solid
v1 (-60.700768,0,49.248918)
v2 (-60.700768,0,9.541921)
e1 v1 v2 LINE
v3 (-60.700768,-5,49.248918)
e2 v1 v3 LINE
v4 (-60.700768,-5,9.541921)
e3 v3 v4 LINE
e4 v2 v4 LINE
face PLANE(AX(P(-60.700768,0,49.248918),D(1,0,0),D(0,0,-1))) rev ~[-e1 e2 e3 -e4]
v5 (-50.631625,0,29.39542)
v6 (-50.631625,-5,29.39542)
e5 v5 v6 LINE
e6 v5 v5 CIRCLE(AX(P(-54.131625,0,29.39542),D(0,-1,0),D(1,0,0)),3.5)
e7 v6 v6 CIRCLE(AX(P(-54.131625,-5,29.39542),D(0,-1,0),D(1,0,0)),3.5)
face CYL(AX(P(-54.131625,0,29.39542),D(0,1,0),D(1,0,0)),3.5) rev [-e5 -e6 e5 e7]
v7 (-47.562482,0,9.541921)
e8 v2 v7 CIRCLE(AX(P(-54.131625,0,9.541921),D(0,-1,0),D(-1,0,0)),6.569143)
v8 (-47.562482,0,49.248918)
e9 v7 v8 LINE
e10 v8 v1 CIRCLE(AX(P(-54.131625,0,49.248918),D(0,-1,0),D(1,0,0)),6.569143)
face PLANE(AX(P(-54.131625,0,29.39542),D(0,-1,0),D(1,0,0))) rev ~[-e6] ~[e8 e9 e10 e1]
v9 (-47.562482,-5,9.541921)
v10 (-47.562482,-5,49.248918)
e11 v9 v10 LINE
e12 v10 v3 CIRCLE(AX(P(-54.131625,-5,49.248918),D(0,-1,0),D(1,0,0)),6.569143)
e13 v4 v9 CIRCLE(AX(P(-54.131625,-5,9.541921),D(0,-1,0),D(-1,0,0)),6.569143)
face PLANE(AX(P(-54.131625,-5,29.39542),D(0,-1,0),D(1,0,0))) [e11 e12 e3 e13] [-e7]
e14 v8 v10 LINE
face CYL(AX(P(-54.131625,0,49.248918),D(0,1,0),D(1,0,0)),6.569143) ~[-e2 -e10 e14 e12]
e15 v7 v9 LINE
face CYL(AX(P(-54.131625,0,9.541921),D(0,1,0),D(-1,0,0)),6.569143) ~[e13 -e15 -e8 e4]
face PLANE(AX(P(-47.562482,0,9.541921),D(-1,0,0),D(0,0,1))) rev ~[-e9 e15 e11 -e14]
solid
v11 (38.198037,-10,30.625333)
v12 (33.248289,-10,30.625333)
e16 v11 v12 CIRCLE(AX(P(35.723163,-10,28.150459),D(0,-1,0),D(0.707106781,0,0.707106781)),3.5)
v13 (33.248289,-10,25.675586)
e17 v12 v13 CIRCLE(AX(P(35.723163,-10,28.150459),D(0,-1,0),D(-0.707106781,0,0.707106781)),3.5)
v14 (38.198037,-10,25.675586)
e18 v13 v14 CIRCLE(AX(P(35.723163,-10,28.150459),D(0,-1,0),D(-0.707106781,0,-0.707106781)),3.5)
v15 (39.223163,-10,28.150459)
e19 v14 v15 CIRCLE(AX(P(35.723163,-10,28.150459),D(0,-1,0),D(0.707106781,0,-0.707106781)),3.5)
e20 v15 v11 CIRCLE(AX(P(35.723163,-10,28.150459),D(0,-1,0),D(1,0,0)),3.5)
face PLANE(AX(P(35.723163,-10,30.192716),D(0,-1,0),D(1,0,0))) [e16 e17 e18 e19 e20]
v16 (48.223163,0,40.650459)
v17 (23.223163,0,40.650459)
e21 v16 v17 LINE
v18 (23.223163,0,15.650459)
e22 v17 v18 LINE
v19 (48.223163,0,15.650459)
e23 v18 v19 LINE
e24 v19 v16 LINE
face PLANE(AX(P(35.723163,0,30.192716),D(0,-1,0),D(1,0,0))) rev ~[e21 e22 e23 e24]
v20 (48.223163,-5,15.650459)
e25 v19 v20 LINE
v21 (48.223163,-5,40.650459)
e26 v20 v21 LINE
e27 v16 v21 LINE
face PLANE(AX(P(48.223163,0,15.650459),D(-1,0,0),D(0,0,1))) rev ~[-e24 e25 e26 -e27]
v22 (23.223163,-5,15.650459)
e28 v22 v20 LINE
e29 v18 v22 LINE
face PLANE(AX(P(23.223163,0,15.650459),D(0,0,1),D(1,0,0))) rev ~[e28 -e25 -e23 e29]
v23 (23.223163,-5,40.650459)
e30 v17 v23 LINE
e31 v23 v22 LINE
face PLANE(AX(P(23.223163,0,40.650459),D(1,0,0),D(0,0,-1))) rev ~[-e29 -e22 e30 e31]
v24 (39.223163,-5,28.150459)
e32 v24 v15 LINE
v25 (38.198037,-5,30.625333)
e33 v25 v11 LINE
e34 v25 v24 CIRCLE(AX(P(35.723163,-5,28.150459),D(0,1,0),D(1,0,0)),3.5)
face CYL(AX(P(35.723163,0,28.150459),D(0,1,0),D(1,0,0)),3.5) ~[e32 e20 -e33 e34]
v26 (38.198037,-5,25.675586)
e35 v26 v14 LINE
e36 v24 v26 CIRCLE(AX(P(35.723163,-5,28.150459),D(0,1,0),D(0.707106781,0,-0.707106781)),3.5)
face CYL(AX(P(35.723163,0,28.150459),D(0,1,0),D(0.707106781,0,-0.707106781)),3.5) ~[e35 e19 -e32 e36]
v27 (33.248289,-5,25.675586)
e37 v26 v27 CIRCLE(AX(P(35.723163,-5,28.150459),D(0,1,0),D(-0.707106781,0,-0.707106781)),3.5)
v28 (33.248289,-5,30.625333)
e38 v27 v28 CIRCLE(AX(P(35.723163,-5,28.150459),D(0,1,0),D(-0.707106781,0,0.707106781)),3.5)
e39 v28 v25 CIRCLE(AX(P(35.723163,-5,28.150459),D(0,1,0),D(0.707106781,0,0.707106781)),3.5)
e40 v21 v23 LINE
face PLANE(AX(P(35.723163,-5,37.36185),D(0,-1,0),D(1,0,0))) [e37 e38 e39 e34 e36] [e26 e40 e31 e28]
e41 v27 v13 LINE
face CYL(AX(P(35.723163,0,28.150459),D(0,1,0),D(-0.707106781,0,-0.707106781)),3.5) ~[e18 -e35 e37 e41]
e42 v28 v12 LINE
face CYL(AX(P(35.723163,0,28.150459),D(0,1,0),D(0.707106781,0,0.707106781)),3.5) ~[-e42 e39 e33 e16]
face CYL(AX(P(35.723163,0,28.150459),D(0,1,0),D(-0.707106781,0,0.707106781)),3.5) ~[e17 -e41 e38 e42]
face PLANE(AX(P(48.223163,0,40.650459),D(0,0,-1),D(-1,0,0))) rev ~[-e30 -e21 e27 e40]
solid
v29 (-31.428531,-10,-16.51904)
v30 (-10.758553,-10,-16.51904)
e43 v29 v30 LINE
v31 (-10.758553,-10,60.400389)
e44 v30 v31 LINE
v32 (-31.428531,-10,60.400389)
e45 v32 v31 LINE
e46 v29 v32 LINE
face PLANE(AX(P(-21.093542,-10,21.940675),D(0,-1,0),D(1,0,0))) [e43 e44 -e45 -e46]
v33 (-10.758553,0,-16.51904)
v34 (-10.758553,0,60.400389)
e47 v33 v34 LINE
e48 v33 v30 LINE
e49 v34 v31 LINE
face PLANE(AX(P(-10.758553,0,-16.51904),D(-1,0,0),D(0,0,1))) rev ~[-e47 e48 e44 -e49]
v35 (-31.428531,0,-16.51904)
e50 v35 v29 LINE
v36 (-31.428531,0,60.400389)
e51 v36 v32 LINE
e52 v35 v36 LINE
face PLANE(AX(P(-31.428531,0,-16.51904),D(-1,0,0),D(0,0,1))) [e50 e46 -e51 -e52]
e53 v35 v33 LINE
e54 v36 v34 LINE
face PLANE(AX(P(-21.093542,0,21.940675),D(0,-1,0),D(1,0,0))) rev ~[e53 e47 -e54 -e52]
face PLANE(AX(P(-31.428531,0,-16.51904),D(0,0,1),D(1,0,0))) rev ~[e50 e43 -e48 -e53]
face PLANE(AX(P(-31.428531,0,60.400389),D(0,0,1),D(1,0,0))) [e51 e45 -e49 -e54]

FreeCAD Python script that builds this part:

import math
import FreeCAD as App
import Part
import Sketcher

V = App.Vector
Q = App.Units.Quantity

doc = App.newDocument("Part")
params = doc.addObject("Spreadsheet::Sheet", "Params")
for row, (alias, value) in enumerate([
    ("sketch1_diameter", "7 mm"),
    ("pad1_length", "5 mm"),
    ("pad2_length", "10 mm"),
    ("sketch3_width", "25 mm"),
    ("pad3_length", "5 mm"),
    ("sketch4_radius", "3.5 mm"),
    ("pad4_length", "10 mm"),
], start=1):
    params.set(f"A{row}", alias)
    params.set(f"B{row}", "=" + value)
    params.setAlias(f"B{row}", alias)

body = doc.addObject("PartDesign::Body", "Body")

sketch1 = body.newObject("Sketcher::SketchObject", "Sketch")
sketch1.AttachmentSupport = (doc.getObject("XZ_Plane"), [""])
sketch1.MapMode = "FlatFace"
sketch1.addGeometry([
    Part.ArcOfCircle(Part.Circle(V(-54.131625, 49.248918, 0), V(0, 0, 1), 6.569143), math.radians(0), math.radians(180)),
    Part.LineSegment(V(-60.700768, 49.248918, 0), V(-60.700768, 9.541921, 0)),
    Part.ArcOfCircle(Part.Circle(V(-54.131625, 9.541921, 0), V(0, 0, 1), 6.569143), math.radians(180), math.radians(360)),
    Part.LineSegment(V(-47.562482, 9.541921, 0), V(-47.562482, 49.248918, 0)),
    Part.Circle(V(-54.131625, 29.39542, 0), V(0, 0, 1), 3.5),
], False)
sketch1.addConstraint([
    Sketcher.Constraint("Tangent", 0, 2, 1, 1),
    Sketcher.Constraint("Tangent", 1, 2, 2, 1),
    Sketcher.Constraint("Tangent", 2, 2, 3, 1),
    Sketcher.Constraint("Tangent", 3, 2, 0, 1),
    Sketcher.Constraint("Vertical", 1),
    Sketcher.Constraint("Vertical", 3),
    Sketcher.Constraint("Vertical", 2, 3, 4, 3),
    Sketcher.Constraint("Diameter", 4, Q("7 mm")),
    Sketcher.Constraint("Radius", 0, Q("6.569143 mm")),
    Sketcher.Constraint("DistanceY", 4, 3, 0, 3, Q("19.853499 mm")),
    Sketcher.Constraint("DistanceY", 2, 3, 4, 3, Q("19.853499 mm")),
    Sketcher.Constraint("DistanceY", -1, 1, 0, 3, Q("49.248918 mm")),
    Sketcher.Constraint("DistanceX", 0, 2, -1, 1, Q("60.700768 mm")),
])
sketch1.setExpression("Constraints[7]", "Params.sketch1_diameter")
pad1 = body.newObject("PartDesign::Pad", "Pad")
pad1.Profile = sketch1
pad1.setExpression("Length", "Params.pad1_length")
body2 = doc.addObject("PartDesign::Body", "Body001")

sketch2 = body2.newObject("Sketcher::SketchObject", "Sketch001")
sketch2.AttachmentSupport = (doc.getObject("XZ_Plane001"), [""])
sketch2.MapMode = "FlatFace"
sketch2.addGeometry([
    Part.LineSegment(V(-31.428531, 60.400389, 0), V(-31.428531, -16.51904, 0)),
    Part.LineSegment(V(-31.428531, -16.51904, 0), V(-10.758553, -16.51904, 0)),
    Part.LineSegment(V(-10.758553, -16.51904, 0), V(-10.758553, 60.400389, 0)),
    Part.LineSegment(V(-10.758553, 60.400389, 0), V(-31.428531, 60.400389, 0)),
], False)
sketch2.addConstraint([
    Sketcher.Constraint("Coincident", 0, 2, 1, 1),
    Sketcher.Constraint("Coincident", 1, 2, 2, 1),
    Sketcher.Constraint("Coincident", 2, 2, 3, 1),
    Sketcher.Constraint("Coincident", 3, 2, 0, 1),
    Sketcher.Constraint("Vertical", 0),
    Sketcher.Constraint("Horizontal", 1),
    Sketcher.Constraint("Vertical", 2),
    Sketcher.Constraint("Horizontal", 3),
    Sketcher.Constraint("DistanceX", 1, 1, 1, 2, Q("20.669978 mm")),
    Sketcher.Constraint("DistanceY", 0, 2, 0, 1, Q("76.919429 mm")),
    Sketcher.Constraint("DistanceX", 0, 2, -1, 1, Q("31.428531 mm")),
    Sketcher.Constraint("DistanceY", 0, 2, -1, 1, Q("16.51904 mm")),
])
pad2 = body2.newObject("PartDesign::Pad", "Pad001")
pad2.Profile = sketch2
pad2.setExpression("Length", "Params.pad2_length")
body3 = doc.addObject("PartDesign::Body", "Body002")

sketch3 = body3.newObject("Sketcher::SketchObject", "Sketch002")
sketch3.AttachmentSupport = (doc.getObject("XZ_Plane002"), [""])
sketch3.MapMode = "FlatFace"
sketch3.addGeometry([
    Part.LineSegment(V(48.223163, 40.650459, 0), V(23.223163, 40.650459, 0)),
    Part.LineSegment(V(23.223163, 40.650459, 0), V(23.223163, 15.650459, 0)),
    Part.LineSegment(V(23.223163, 15.650459, 0), V(48.223163, 15.650459, 0)),
    Part.LineSegment(V(48.223163, 15.650459, 0), V(48.223163, 40.650459, 0)),
], False)
sketch3.addConstraint([
    Sketcher.Constraint("Coincident", 0, 2, 1, 1),
    Sketcher.Constraint("Coincident", 1, 2, 2, 1),
    Sketcher.Constraint("Coincident", 2, 2, 3, 1),
    Sketcher.Constraint("Coincident", 3, 2, 0, 1),
    Sketcher.Constraint("Horizontal", 0),
    Sketcher.Constraint("Vertical", 1),
    Sketcher.Constraint("Horizontal", 2),
    Sketcher.Constraint("Vertical", 3),
    Sketcher.Constraint("Equal", 2, 1),
    Sketcher.Constraint("DistanceX", 0, 2, 0, 1, Q("25 mm")),
    Sketcher.Constraint("DistanceY", -1, 1, 0, 2, Q("40.650459 mm")),
    Sketcher.Constraint("DistanceX", -1, 1, 0, 2, Q("23.223163 mm")),
])
sketch3.setExpression("Constraints[9]", "Params.sketch3_width")
pad3 = body3.newObject("PartDesign::Pad", "Pad002")
pad3.Profile = sketch3
pad3.setExpression("Length", "Params.pad3_length")

sketch4 = body3.newObject("Sketcher::SketchObject", "Sketch003")
sketch4.AttachmentSupport = (doc.getObject("XZ_Plane002"), [""])
sketch4.MapMode = "FlatFace"
sketch4.addGeometry([
    Part.ArcOfCircle(Part.Circle(V(35.723163, 28.150459, 0), V(0, 0, 1), 3.5), math.radians(45), math.radians(135)),
    Part.ArcOfCircle(Part.Circle(V(35.723163, 28.150459, 0), V(0, 0, 1), 3.5), math.radians(135), math.radians(225)),
    Part.ArcOfCircle(Part.Circle(V(35.723163, 28.150459, 0), V(0, 0, 1), 3.5), math.radians(-135), math.radians(-45)),
    Part.ArcOfCircle(Part.Circle(V(35.723163, 28.150459, 0), V(0, 0, 1), 3.5), math.radians(-45), math.radians(0)),
    Part.ArcOfCircle(Part.Circle(V(35.723163, 28.150459, 0), V(0, 0, 1), 3.5), math.radians(0), math.radians(45)),
], False)
sketch4.addConstraint([
    Sketcher.Constraint("Tangent", 0, 2, 1, 1),
    Sketcher.Constraint("Tangent", 1, 2, 2, 1),
    Sketcher.Constraint("Tangent", 2, 2, 3, 1),
    Sketcher.Constraint("Tangent", 3, 2, 4, 1),
    Sketcher.Constraint("Tangent", 4, 2, 0, 1),
    Sketcher.Constraint("Coincident", 2, 3, 0, 3),
    Sketcher.Constraint("Horizontal", 1, 2, 2, 2),
    Sketcher.Constraint("Horizontal", 4, 3, 3, 2),
    Sketcher.Constraint("Horizontal", 0, 2, 4, 2),
    Sketcher.Constraint("Vertical", 0, 2, 1, 2),
    Sketcher.Constraint("Radius", 0, Q("3.5 mm")),
    Sketcher.Constraint("DistanceY", -1, 1, 0, 3, Q("28.150459 mm")),
    Sketcher.Constraint("DistanceX", -1, 1, 0, 2, Q("33.248289 mm")),
    Sketcher.Constraint("DistanceX", -1, 1, 0, 3, Q("35.723163 mm")),
])
sketch4.setExpression("Constraints[10]", "Params.sketch4_radius")
pad4 = body3.newObject("PartDesign::Pad", "Pad003")
pad4.Profile = sketch4
pad4.setExpression("Length", "Params.pad4_length")

doc.recompute()
